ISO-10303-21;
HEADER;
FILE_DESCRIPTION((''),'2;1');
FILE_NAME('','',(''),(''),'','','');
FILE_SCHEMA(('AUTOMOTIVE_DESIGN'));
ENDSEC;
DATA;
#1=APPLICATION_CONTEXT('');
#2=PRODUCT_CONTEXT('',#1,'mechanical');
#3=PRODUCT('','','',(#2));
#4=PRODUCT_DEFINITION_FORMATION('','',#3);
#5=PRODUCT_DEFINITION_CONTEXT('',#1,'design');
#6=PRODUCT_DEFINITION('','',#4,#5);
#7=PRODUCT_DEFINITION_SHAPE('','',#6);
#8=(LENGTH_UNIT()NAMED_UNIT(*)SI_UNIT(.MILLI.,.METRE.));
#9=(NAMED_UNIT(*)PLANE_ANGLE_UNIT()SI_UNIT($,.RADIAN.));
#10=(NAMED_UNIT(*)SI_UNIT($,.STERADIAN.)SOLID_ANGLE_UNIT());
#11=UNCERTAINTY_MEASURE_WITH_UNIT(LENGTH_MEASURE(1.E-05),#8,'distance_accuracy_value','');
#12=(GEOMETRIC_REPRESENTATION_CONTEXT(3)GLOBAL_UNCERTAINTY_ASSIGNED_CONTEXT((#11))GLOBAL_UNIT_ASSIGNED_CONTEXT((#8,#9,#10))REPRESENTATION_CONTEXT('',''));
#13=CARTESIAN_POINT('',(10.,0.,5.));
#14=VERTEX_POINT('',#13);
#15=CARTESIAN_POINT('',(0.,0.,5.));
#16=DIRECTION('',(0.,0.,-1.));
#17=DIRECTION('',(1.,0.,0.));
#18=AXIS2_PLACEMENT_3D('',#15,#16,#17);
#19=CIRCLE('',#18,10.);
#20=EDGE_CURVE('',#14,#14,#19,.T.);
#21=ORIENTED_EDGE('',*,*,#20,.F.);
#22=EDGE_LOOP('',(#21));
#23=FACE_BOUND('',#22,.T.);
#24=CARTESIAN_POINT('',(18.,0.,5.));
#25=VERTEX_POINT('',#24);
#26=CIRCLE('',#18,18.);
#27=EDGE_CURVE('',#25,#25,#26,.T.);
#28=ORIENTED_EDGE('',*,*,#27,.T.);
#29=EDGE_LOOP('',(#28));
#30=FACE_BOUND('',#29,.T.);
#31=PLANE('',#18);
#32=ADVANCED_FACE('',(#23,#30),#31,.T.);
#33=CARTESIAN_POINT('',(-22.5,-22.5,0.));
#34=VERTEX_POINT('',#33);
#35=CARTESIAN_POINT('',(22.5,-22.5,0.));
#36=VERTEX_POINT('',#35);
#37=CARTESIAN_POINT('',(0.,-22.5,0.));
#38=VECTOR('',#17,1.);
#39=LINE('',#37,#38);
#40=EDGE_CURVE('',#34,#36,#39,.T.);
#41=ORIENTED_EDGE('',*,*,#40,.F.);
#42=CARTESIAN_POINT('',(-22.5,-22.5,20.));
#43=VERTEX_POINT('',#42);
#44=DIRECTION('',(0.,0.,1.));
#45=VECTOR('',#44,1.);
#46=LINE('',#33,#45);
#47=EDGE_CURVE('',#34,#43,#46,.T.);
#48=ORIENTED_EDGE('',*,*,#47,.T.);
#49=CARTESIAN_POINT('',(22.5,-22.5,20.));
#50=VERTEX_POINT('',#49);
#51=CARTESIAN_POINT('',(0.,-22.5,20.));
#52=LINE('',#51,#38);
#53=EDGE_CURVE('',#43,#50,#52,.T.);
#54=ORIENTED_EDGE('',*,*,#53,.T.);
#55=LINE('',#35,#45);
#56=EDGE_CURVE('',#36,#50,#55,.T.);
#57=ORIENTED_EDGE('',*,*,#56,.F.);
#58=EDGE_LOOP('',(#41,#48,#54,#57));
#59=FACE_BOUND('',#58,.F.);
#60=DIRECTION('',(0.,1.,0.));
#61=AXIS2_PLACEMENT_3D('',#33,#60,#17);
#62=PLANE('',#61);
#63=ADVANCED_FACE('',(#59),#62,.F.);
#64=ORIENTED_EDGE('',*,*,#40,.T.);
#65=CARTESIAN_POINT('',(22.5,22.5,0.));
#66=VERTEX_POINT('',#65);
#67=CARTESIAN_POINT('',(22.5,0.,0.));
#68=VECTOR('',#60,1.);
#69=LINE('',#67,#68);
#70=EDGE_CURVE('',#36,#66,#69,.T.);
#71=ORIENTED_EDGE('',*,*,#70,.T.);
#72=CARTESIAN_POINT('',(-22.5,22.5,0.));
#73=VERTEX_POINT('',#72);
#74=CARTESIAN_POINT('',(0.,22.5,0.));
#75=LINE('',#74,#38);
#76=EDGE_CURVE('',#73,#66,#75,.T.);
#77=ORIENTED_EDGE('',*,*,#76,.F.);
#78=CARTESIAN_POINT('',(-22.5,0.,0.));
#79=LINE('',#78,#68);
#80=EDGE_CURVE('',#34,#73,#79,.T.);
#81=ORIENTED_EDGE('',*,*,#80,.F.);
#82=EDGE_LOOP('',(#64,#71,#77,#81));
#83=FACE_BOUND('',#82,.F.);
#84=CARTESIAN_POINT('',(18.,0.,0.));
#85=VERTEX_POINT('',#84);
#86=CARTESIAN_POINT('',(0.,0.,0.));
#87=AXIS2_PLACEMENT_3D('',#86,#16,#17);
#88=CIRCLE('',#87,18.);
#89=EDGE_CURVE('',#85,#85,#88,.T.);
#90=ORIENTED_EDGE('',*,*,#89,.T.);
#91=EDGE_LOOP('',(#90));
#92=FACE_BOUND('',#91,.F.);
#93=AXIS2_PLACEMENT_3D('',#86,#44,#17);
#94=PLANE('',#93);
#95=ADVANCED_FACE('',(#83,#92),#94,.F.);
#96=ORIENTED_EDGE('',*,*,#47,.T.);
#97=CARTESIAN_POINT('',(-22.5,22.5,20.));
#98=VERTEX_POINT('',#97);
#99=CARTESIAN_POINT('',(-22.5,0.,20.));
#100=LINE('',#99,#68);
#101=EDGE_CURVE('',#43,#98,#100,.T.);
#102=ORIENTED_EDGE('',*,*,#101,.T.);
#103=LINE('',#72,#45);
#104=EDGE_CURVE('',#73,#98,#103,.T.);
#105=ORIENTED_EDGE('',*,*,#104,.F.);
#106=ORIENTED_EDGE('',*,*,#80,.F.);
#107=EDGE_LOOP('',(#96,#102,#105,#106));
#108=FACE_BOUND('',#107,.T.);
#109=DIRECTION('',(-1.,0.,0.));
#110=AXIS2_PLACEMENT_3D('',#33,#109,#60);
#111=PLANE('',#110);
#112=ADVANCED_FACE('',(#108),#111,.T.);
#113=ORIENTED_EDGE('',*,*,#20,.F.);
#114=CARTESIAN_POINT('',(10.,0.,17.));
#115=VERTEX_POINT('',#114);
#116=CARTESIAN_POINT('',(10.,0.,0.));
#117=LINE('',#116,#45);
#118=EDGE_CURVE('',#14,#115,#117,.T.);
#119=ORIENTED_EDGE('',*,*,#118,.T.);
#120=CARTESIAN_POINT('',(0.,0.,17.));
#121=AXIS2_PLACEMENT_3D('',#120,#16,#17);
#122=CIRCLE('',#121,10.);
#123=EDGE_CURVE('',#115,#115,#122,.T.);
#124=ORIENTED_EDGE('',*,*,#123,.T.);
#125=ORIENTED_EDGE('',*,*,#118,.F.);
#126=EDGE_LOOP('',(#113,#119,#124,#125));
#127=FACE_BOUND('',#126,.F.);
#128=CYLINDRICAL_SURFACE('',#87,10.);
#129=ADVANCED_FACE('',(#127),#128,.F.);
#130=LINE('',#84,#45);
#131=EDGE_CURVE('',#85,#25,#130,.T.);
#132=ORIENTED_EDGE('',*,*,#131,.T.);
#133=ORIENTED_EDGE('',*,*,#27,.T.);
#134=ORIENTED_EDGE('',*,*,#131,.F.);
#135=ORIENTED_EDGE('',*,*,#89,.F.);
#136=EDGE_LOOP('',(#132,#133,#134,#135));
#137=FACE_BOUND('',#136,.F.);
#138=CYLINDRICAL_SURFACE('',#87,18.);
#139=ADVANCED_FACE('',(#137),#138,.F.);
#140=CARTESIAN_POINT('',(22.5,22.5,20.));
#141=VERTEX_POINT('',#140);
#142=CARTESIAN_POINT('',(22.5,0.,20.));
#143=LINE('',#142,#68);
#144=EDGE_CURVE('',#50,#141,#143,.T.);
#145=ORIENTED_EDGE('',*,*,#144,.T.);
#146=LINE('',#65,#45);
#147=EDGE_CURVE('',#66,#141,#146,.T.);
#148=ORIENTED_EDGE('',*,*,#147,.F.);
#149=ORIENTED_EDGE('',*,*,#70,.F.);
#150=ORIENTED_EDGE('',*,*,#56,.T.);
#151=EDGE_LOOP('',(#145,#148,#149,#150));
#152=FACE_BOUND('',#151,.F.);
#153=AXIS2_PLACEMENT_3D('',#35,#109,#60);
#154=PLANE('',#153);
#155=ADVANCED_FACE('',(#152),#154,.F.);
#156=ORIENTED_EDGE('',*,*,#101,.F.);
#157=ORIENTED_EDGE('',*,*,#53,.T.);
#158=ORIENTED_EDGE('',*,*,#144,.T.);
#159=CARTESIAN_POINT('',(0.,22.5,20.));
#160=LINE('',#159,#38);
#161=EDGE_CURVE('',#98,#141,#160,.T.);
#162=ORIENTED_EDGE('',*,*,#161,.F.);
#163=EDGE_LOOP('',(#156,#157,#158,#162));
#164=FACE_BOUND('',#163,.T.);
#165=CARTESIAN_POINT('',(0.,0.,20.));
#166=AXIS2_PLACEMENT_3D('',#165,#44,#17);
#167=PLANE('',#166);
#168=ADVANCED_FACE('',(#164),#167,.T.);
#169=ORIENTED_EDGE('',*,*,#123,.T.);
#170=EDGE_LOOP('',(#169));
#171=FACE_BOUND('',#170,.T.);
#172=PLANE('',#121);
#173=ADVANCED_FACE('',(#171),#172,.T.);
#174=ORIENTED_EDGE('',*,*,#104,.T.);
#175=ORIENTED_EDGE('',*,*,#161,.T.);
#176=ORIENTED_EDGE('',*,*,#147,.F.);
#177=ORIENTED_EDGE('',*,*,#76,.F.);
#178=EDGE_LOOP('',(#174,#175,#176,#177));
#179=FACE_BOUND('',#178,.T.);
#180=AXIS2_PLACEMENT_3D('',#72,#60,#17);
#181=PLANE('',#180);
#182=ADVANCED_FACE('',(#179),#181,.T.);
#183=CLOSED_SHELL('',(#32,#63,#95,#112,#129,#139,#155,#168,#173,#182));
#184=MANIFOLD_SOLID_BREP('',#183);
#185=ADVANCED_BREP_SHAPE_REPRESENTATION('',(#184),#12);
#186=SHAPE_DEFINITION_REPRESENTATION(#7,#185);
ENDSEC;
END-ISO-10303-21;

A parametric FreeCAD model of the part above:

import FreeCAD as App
import Part
import Sketcher


def add_polygon(sketch, points):
    """Adds a closed chain of lines whose ends are joined by coincident constraints."""
    first, n = sketch.GeometryCount, len(points)
    for a, b in zip(points, points[1:] + points[:1]):
        sketch.addGeometry(Part.LineSegment(App.Vector(*a, 0), App.Vector(*b, 0)), False)
    for i in range(n):
        sketch.addConstraint(Sketcher.Constraint("Coincident", first + i, 2, first + (i + 1) % n, 1))

doc = App.newDocument("Part")
body = doc.addObject("PartDesign::Body", "Body")

# Sketch on XY plane
sketch1 = body.newObject("Sketcher::SketchObject", "Sketch")
sketch1.AttachmentSupport = (doc.getObject("XY_Plane"), [""])
sketch1.MapMode = "FlatFace"
add_polygon(sketch1, [(-22, 22), (-22, -22), (22, -22), (22, 22)])  # lines 0-3
sketch1.addConstraint([
    Sketcher.Constraint("Vertical", 0),
    Sketcher.Constraint("Horizontal", 1),
    Sketcher.Constraint("Vertical", 2),
    Sketcher.Constraint("Horizontal", 3),
    Sketcher.Constraint("Symmetric", 0, 2, 2, 2, -1, 1),
    Sketcher.Constraint("Equal", 3, 0),
    Sketcher.Constraint("DistanceX", 1, 1, 1, 2, 45.0),
])
pad1 = body.newObject("PartDesign::Pad", "Pad")
pad1.Profile = sketch1
pad1.Length = 20

# Sketch on XY plane
sketch2 = body.newObject("Sketcher::SketchObject", "Sketch001")
sketch2.AttachmentSupport = (doc.getObject("XY_Plane"), [""])
sketch2.MapMode = "FlatFace"
sketch2.addGeometry(Part.Circle(App.Vector(0, 0, 0), App.Vector(0, 0, 1), 10), False)
sketch2.addConstraint([
    Sketcher.Constraint("Coincident", 0, 3, -1, 1),
    Sketcher.Constraint("Diameter", 0, 20.0),
])
pocket1 = body.newObject("PartDesign::Pocket", "Pocket")
pocket1.Profile = sketch2
pocket1.Length = 17
pocket1.Reversed = True

# Sketch on XY plane
sketch3 = body.newObject("Sketcher::SketchObject", "Sketch002")
sketch3.AttachmentSupport = (doc.getObject("XY_Plane"), [""])
sketch3.MapMode = "FlatFace"
sketch3.addGeometry([
    Part.Circle(App.Vector(0, 0, 0), App.Vector(0, 0, 1), 18),
    Part.Circle(App.Vector(0, 0, 0), App.Vector(0, 0, 1), 10),
], False)
sketch3.addConstraint([
    Sketcher.Constraint("Coincident", 0, 3, -1, 1),
    Sketcher.Constraint("Coincident", 1, 3, -1, 1),
    Sketcher.Constraint("Diameter", 0, 36.0),
    Sketcher.Constraint("Diameter", 1, 20.0),
])
pocket2 = body.newObject("PartDesign::Pocket", "Pocket001")
pocket2.Profile = sketch3
pocket2.Length = 5
pocket2.Reversed = True

doc.recompute()
